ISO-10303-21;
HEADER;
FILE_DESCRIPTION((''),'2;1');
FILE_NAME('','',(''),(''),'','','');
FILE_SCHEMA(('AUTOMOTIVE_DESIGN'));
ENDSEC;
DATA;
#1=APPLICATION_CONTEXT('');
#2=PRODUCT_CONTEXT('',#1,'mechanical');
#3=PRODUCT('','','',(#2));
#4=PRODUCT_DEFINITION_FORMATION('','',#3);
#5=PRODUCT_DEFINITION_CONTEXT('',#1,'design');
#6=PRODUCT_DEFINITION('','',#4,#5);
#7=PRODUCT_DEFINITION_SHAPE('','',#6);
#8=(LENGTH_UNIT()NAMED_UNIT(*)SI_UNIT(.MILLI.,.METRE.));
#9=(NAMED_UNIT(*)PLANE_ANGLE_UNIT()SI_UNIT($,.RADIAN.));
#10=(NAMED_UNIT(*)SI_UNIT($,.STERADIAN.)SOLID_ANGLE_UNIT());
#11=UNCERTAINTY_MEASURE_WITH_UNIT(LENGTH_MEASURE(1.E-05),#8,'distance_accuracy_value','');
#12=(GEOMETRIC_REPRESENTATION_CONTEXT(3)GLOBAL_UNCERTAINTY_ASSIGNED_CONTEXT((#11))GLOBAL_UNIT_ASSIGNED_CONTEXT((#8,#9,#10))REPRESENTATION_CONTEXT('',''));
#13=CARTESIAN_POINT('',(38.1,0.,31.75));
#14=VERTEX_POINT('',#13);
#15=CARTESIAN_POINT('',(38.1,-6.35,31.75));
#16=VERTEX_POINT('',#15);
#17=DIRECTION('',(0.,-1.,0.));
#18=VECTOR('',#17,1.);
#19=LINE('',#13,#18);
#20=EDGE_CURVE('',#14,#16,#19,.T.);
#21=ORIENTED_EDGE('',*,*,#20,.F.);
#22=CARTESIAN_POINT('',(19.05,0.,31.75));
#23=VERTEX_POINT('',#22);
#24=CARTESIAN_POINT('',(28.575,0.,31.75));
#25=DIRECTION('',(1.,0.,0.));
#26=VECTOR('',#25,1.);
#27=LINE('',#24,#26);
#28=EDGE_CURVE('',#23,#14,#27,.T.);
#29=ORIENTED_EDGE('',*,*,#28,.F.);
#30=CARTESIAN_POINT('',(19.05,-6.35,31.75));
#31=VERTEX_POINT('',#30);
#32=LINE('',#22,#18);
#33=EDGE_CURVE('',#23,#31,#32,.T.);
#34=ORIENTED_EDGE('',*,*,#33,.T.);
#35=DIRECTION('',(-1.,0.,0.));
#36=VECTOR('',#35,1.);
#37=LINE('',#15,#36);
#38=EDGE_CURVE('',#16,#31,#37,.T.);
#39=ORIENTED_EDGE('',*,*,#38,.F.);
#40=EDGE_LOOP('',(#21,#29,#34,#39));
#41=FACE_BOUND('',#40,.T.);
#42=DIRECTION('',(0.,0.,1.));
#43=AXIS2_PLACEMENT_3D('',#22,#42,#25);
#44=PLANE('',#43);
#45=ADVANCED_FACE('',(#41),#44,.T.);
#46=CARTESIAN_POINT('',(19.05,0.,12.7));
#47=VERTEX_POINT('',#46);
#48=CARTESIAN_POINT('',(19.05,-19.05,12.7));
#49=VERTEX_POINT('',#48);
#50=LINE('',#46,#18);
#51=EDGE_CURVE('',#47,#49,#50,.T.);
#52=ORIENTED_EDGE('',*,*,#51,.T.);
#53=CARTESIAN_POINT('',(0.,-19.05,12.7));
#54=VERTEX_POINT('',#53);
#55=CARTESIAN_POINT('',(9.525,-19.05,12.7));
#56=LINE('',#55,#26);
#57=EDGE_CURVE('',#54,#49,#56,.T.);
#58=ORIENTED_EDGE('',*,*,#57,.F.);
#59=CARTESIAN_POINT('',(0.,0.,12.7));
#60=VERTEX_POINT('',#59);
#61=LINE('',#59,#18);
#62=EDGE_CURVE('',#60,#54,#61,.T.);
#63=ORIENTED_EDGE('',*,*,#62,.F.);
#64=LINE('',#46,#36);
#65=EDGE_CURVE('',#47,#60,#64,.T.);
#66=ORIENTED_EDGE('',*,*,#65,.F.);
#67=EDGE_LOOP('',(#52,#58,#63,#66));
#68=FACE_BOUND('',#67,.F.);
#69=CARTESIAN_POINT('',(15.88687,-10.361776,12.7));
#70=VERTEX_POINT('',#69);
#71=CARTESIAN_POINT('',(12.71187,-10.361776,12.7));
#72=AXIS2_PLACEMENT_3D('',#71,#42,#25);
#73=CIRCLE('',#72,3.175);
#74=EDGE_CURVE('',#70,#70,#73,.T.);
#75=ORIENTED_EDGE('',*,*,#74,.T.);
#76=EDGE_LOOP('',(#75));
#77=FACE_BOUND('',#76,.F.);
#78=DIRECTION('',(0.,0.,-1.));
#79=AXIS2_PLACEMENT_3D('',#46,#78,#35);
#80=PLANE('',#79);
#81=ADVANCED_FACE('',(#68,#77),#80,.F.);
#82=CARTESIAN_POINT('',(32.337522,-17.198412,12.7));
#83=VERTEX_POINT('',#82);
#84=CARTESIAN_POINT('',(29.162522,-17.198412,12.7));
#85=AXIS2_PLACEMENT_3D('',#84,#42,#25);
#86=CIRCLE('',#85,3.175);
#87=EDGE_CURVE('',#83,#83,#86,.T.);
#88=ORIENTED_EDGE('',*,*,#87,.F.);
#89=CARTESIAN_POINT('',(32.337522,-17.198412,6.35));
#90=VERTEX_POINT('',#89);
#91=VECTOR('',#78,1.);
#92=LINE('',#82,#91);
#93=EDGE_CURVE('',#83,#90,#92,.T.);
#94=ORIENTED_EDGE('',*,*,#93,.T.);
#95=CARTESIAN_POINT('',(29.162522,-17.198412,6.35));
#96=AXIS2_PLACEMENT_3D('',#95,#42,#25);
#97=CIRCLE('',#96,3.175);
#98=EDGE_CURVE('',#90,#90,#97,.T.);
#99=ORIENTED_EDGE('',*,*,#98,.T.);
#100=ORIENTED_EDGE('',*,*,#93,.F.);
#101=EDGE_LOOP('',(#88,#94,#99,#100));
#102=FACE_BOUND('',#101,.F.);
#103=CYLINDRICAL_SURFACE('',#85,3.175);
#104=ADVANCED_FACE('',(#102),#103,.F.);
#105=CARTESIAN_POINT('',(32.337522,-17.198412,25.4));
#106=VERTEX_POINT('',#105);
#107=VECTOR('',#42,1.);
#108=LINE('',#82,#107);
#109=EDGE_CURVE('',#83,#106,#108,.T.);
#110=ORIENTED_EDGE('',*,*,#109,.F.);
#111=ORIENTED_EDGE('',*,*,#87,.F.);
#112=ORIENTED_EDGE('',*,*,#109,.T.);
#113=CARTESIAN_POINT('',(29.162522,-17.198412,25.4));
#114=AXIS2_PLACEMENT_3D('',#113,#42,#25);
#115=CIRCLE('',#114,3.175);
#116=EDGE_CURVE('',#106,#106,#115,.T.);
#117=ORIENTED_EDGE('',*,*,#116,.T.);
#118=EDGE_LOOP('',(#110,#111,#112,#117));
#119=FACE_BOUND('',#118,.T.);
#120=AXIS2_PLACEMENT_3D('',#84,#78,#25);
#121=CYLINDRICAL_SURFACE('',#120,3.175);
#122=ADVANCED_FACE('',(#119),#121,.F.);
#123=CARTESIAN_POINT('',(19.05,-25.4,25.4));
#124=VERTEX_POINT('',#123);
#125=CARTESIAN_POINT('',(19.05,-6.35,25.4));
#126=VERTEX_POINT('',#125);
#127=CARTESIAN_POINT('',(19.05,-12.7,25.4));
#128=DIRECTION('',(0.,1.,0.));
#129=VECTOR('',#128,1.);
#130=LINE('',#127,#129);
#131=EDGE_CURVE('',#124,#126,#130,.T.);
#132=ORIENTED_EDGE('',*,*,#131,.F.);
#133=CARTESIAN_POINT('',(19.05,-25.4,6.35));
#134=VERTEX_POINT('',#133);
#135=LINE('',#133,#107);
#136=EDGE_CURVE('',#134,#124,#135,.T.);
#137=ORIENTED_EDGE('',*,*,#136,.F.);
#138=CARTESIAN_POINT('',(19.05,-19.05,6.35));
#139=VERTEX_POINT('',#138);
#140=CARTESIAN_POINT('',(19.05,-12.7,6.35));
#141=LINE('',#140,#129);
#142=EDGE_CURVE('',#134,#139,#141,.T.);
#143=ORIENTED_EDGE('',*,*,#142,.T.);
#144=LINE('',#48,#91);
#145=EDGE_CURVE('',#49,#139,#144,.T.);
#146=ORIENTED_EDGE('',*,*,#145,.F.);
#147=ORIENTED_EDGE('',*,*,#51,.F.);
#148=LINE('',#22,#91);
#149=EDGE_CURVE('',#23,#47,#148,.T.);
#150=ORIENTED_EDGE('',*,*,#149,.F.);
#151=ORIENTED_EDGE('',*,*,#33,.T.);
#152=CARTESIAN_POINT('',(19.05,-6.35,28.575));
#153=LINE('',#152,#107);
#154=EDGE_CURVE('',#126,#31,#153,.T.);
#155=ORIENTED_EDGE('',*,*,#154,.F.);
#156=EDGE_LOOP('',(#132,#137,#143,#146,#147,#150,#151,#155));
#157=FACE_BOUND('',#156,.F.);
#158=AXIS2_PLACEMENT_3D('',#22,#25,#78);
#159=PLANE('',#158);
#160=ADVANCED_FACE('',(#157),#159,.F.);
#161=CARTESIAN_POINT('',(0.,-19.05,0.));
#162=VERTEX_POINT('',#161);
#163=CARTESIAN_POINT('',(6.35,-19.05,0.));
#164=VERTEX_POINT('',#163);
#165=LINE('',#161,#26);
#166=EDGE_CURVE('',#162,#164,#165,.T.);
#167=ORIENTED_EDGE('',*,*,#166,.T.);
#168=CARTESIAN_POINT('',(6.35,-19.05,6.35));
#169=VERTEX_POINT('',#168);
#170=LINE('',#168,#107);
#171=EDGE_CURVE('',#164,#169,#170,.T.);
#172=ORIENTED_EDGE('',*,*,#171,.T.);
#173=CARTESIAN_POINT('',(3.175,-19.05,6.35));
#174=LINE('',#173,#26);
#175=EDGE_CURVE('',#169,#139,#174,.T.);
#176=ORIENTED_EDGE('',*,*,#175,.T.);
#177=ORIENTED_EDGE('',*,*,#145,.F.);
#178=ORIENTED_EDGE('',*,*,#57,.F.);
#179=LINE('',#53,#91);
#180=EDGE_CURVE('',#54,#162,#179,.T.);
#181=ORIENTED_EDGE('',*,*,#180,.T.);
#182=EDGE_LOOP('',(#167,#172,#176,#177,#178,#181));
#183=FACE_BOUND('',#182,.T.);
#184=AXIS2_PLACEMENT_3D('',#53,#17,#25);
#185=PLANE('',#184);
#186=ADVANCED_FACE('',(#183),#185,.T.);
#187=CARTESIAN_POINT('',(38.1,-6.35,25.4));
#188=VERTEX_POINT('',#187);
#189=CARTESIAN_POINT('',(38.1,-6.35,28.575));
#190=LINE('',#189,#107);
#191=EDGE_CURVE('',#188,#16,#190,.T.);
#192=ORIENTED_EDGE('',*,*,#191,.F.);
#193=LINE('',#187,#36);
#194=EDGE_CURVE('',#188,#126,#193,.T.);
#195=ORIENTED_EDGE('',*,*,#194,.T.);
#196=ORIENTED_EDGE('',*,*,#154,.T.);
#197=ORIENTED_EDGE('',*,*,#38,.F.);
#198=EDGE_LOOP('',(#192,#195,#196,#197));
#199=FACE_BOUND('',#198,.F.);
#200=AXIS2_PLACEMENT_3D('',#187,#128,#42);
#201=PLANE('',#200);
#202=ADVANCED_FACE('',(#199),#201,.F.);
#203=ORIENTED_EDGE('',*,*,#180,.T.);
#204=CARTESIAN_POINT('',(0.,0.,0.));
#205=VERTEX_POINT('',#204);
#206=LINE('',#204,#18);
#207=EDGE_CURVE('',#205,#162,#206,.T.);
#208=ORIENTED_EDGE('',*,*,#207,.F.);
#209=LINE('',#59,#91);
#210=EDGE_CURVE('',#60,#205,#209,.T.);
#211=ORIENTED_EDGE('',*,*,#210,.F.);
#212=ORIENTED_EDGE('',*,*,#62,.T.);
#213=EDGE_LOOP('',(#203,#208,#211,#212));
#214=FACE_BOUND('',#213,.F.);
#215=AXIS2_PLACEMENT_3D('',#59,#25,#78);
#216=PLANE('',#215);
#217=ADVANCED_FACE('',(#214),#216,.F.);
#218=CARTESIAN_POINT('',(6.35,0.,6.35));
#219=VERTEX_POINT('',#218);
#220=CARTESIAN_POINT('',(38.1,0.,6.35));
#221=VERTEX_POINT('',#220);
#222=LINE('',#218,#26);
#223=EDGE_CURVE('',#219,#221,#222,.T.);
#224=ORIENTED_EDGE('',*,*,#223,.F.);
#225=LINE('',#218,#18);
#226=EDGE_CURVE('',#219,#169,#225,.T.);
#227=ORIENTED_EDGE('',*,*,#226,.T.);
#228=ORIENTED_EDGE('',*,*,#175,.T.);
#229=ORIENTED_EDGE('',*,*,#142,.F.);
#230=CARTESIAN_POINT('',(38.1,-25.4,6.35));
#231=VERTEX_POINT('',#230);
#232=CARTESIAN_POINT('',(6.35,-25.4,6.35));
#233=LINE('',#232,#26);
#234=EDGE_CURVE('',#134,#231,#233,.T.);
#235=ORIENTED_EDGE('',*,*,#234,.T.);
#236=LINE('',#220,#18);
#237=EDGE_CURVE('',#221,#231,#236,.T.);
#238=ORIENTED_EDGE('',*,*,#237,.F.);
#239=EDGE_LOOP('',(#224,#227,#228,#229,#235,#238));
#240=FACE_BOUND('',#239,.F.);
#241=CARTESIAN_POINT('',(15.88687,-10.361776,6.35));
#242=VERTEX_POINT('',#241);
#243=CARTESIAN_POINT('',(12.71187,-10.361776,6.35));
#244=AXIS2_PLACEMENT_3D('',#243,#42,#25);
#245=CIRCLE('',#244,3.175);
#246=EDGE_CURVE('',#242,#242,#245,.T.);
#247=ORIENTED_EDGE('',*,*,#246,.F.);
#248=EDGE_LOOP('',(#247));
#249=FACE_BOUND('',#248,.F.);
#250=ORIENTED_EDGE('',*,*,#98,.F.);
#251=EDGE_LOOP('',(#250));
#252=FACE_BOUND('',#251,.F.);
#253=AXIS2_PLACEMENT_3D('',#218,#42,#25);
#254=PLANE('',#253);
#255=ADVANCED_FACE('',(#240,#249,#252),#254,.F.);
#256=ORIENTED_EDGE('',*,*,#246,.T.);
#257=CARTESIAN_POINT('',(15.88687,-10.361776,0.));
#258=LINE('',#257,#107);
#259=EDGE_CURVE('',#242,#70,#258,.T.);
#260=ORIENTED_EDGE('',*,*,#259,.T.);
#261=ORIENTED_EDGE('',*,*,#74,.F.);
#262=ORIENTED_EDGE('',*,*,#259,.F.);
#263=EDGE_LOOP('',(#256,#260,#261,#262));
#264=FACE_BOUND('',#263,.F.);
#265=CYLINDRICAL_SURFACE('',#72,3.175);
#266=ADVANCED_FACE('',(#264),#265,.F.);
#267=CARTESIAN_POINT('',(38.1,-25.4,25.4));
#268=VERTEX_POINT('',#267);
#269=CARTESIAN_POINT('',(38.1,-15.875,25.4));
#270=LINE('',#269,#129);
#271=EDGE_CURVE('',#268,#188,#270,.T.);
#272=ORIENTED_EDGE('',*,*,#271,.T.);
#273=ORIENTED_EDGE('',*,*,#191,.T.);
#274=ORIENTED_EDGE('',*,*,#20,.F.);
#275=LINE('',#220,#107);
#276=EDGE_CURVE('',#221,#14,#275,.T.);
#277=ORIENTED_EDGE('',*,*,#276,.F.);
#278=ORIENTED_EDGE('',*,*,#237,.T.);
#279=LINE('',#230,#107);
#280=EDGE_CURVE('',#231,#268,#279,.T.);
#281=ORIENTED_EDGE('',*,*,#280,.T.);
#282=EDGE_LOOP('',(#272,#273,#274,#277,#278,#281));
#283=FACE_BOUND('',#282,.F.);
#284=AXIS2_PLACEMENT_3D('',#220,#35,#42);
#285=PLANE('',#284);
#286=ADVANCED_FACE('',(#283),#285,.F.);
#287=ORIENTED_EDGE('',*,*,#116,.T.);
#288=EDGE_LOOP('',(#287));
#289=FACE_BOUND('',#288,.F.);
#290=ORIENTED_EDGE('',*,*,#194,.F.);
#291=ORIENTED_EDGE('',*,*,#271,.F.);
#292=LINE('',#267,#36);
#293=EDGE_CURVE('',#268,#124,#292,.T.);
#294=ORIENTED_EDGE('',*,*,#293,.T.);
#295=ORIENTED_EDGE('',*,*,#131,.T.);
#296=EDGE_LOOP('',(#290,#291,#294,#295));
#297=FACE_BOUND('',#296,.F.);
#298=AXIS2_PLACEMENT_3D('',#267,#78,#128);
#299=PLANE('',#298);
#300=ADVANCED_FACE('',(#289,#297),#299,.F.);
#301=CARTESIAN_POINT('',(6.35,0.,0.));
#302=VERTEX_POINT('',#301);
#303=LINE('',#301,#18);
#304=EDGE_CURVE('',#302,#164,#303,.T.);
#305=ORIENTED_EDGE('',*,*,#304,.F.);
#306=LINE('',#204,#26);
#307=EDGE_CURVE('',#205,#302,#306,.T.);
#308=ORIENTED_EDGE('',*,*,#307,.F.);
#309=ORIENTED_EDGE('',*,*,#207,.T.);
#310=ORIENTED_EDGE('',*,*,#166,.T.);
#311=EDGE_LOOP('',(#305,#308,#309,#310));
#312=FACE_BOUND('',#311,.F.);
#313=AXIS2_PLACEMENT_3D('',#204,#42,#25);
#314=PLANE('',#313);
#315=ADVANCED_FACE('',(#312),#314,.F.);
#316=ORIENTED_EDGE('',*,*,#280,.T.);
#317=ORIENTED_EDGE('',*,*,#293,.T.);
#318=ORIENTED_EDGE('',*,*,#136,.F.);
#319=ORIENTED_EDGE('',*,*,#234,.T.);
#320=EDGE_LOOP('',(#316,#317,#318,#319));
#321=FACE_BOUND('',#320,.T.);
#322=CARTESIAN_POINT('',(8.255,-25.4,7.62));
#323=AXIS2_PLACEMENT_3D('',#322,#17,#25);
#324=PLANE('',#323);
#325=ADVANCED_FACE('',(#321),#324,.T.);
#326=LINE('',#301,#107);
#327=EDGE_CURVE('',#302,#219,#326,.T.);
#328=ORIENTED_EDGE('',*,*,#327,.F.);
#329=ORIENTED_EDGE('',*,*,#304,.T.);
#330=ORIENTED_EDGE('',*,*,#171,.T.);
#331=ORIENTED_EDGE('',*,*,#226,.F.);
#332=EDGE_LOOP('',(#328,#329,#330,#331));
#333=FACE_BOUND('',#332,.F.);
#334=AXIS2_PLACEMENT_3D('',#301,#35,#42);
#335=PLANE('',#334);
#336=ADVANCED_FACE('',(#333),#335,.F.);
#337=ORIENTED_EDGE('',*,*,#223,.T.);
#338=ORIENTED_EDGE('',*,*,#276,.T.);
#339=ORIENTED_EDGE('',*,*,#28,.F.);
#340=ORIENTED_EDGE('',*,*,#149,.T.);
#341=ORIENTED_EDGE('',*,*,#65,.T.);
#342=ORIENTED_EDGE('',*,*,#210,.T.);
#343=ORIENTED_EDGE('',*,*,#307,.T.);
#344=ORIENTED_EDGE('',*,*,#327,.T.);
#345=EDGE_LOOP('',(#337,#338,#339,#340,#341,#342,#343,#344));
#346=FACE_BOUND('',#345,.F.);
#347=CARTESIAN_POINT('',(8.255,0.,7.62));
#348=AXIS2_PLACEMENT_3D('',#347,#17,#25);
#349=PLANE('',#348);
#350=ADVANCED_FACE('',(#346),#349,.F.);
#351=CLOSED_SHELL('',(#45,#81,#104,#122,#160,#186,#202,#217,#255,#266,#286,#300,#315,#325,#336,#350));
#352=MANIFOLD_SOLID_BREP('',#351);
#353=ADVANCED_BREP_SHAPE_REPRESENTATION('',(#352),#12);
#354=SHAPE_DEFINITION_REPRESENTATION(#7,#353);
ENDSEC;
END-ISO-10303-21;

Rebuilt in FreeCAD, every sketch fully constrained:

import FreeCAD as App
import Part
import Sketcher

V = App.Vector
Q = App.Units.Quantity


def add_polygon(sketch, points):
    """Adds a closed chain of lines whose ends are joined by coincident constraints."""
    first, n = sketch.GeometryCount, len(points)
    for a, b in zip(points, points[1:] + points[:1]):
        sketch.addGeometry(Part.LineSegment(App.Vector(*a, 0), App.Vector(*b, 0)), False)
    for i in range(n):
        sketch.addConstraint(Sketcher.Constraint("Coincident", first + i, 2, first + (i + 1) % n, 1))

doc = App.newDocument("Part")
params = doc.addObject("Spreadsheet::Sheet", "Params")
for row, (alias, value) in enumerate([
    ("sketch1_height", "1 in"),
    ("sketch1_height2", "0.5 in"),
    ("sketch1_width", "0.25 in"),
    ("pad1_length", "1 in"),
    ("sketch2_width", "0.75 in"),
    ("sketch2_height", "0.25 in"),
    ("sketch3_width", "0.75 in"),
    ("sketch3_height", "0.25 in"),
    ("sketch4_diameter", "0.25 in"),
    ("pocket3_length", "1 in"),
], start=1):
    params.set(f"A{row}", alias)
    params.set(f"B{row}", "=" + value)
    params.setAlias(f"B{row}", alias)

body = doc.addObject("PartDesign::Body", "Body")

sketch1 = body.newObject("Sketcher::SketchObject", "Sketch")
sketch1.AttachmentSupport = (doc.getObject("XZ_Plane"), [""])
sketch1.MapMode = "FlatFace"
add_polygon(sketch1, [(0, 13), (0, 0), (6, 0), (6, 6), (38, 6), (38, 32), (19, 32), (19, 13)])
sketch1.addConstraint([
    Sketcher.Constraint("Vertical", 0),
    Sketcher.Constraint("Horizontal", 1),
    Sketcher.Constraint("Vertical", 2),
    Sketcher.Constraint("Horizontal", 3),
    Sketcher.Constraint("Vertical", 4),
    Sketcher.Constraint("Horizontal", 5),
    Sketcher.Constraint("Vertical", 6),
    Sketcher.Constraint("Horizontal", 7),
    Sketcher.Constraint("Coincident", 0, 2, -1, 1),
    Sketcher.Constraint("Equal", 5, 7),
    Sketcher.Constraint("Equal", 1, 2),
    Sketcher.Constraint("Equal", 7, 6),
    Sketcher.Constraint("DistanceY", 4, 1, 4, 2, Q("1 in")),
    Sketcher.Constraint("DistanceY", 0, 2, 0, 1, Q("0.5 in")),
    Sketcher.Constraint("DistanceX", 1, 1, 1, 2, Q("0.25 in")),
])
sketch1.setExpression("Constraints[20]", "Params.sketch1_height")
sketch1.setExpression("Constraints[21]", "Params.sketch1_height2")
sketch1.setExpression("Constraints[22]", "Params.sketch1_width")
pad1 = body.newObject("PartDesign::Pad", "Pad")
pad1.Profile = sketch1
pad1.setExpression("Length", "Params.pad1_length")

sketch2 = body.newObject("Sketcher::SketchObject", "Sketch001")
sketch2.AttachmentSupport = (doc.getObject("XY_Plane"), [""])
sketch2.MapMode = "FlatFace"
sketch2.AttachmentOffset = App.Placement(V(0, 0, 0.5 * 25.4), App.Rotation())
add_polygon(sketch2, [(0, -19), (0, -25), (19, -25), (19, -19)])
sketch2.addConstraint([
    Sketcher.Constraint("Vertical", 0),
    Sketcher.Constraint("Horizontal", 1),
    Sketcher.Constraint("Vertical", 2),
    Sketcher.Constraint("Horizontal", 3),
    Sketcher.Constraint("PointOnObject", 0, 2, -2),
    Sketcher.Constraint("DistanceY", 0, 2, -1, 1, Q("1 in")),
    Sketcher.Constraint("DistanceX", 1, 1, 1, 2, Q("0.75 in")),
    Sketcher.Constraint("DistanceY", 0, 2, 0, 1, Q("0.25 in")),
])
sketch2.setExpression("Constraints[10]", "Params.sketch2_width")
sketch2.setExpression("Constraints[11]", "Params.sketch2_height")
pocket1 = body.newObject("PartDesign::Pocket", "Pocket")
pocket1.Profile = sketch2
pocket1.Type = "ThroughAll"

sketch3 = body.newObject("Sketcher::SketchObject", "Sketch002")
sketch3.AttachmentSupport = (doc.getObject("YZ_Plane"), [""])
sketch3.MapMode = "FlatFace"
sketch3.AttachmentOffset = App.Placement(V(0, 0, 1.5 * 25.4), App.Rotation())
add_polygon(sketch3, [(-25, 32), (-25, 25), (-6, 25), (-6, 32)])
sketch3.addConstraint([
    Sketcher.Constraint("Vertical", 0),
    Sketcher.Constraint("Horizontal", 1),
    Sketcher.Constraint("Vertical", 2),
    Sketcher.Constraint("Horizontal", 3),
    Sketcher.Constraint("DistanceX", 0, 2, -1, 1, Q("1 in")),
    Sketcher.Constraint("DistanceY", -1, 1, 0, 2, Q("1 in")),
    Sketcher.Constraint("DistanceX", 1, 1, 1, 2, Q("0.75 in")),
    Sketcher.Constraint("DistanceY", 0, 2, 0, 1, Q("0.25 in")),
])
sketch3.setExpression("Constraints[10]", "Params.sketch3_width")
sketch3.setExpression("Constraints[11]", "Params.sketch3_height")
pocket2 = body.newObject("PartDesign::Pocket", "Pocket001")
pocket2.Profile = sketch3
pocket2.Type = "ThroughAll"

sketch4 = body.newObject("Sketcher::SketchObject", "Sketch003")
sketch4.AttachmentSupport = (doc.getObject("XY_Plane"), [""])
sketch4.MapMode = "FlatFace"
sketch4.AttachmentOffset = App.Placement(V(0, 0, 0.5 * 25.4), App.Rotation())
sketch4.addGeometry([
    Part.Circle(V(29.2, -17.2, 0), V(0, 0, 1), 3.2),
    Part.Circle(V(12.7, -10.4, 0), V(0, 0, 1), 3.2),
], False)
sketch4.addConstraint([
    Sketcher.Constraint("Equal", 0, 1),
    Sketcher.Constraint("Diameter", 0, Q("0.25 in")),
    Sketcher.Constraint("DistanceX", -1, 1, 0, 3, Q("29.162522 mm")),
    Sketcher.Constraint("DistanceX", -1, 1, 1, 3, Q("12.71187 mm")),
    Sketcher.Constraint("DistanceY", 0, 3, -1, 1, Q("17.198412 mm")),
    Sketcher.Constraint("DistanceY", 1, 3, -1, 1, Q("10.361776 mm")),
])
sketch4.setExpression("Constraints[1]", "Params.sketch4_diameter")
pocket3 = body.newObject("PartDesign::Pocket", "Pocket002")
pocket3.Profile = sketch4
pocket3.setExpression("Length", "Params.pocket3_length")
pocket3.Midplane = True

doc.recompute()
